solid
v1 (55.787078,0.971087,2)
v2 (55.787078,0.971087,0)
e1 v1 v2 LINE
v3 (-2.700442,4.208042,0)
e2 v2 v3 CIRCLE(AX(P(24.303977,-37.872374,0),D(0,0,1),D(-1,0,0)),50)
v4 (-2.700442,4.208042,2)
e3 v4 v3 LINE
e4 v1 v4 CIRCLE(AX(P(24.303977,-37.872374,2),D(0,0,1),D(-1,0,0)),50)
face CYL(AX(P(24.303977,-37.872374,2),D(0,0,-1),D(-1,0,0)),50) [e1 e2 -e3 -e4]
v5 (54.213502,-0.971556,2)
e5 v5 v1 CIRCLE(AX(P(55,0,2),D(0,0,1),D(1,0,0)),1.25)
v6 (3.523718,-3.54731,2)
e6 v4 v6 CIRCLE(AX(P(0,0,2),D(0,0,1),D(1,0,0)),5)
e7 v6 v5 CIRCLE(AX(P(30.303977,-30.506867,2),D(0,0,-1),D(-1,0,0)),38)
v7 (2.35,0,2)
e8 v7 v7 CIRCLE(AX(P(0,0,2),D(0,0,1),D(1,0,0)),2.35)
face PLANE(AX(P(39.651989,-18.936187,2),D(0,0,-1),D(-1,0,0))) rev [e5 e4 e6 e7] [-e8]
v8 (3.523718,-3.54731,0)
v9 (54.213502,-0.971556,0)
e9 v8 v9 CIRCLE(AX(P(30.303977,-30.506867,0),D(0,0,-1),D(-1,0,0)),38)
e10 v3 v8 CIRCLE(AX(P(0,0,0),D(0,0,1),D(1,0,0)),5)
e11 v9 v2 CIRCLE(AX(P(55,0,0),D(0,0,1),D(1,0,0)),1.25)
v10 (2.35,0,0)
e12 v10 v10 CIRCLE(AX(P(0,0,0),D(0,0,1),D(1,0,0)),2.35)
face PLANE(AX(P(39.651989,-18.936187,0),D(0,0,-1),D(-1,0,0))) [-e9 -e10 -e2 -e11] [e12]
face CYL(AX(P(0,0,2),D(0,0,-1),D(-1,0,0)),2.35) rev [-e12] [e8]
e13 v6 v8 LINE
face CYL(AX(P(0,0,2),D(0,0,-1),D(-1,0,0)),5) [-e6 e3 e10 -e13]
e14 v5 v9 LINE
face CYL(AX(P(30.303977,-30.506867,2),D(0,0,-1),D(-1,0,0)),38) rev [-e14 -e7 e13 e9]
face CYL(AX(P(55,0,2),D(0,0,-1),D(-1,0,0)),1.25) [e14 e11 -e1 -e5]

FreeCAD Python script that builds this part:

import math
import FreeCAD as App
import Part
import Sketcher

V = App.Vector
Q = App.Units.Quantity

doc = App.newDocument("Part")
body = doc.addObject("PartDesign::Body", "Body")

sketch1 = body.newObject("Sketcher::SketchObject", "Sketch")
sketch1.AttachmentSupport = (doc.getObject("XY_Plane"), [""])
sketch1.MapMode = "FlatFace"
sketch1.addGeometry(Part.ArcOfCircle(Part.Circle(V(0, 0, 0), V(0, 0, 1), 5), math.radians(123), math.radians(315)), False)
sketch1.addGeometry(Part.ArcOfCircle(Part.Circle(V(30.3, -30.5, 0), V(0, 0, 1), 38), math.radians(51), math.radians(135)), False)
sketch1.addGeometry(Part.ArcOfCircle(Part.Circle(V(55, 0, 0), V(0, 0, 1), 1.2), math.radians(-129), math.radians(51)), False)
sketch1.addGeometry(Part.ArcOfCircle(Part.Circle(V(24.3, -37.9, 0), V(0, 0, 1), 50), math.radians(51), math.radians(123)), False)
sketch1.addGeometry(Part.Circle(V(0, 0, 0), V(0, 0, 1), 2.4), False)
sketch1.addConstraint(Sketcher.Constraint("Tangent", 0, 2, 1, 2))
sketch1.addConstraint(Sketcher.Constraint("Tangent", 1, 1, 2, 1))
sketch1.addConstraint(Sketcher.Constraint("Tangent", 2, 2, 3, 1))
sketch1.addConstraint(Sketcher.Constraint("Tangent", 3, 2, 0, 1))
sketch1.addConstraint(Sketcher.Constraint("Coincident", 0, 3, -1, 1))
sketch1.addConstraint(Sketcher.Constraint("Coincident", 4, 3, -1, 1))
sketch1.addConstraint(Sketcher.Constraint("PointOnObject", 2, 3, -1))
sketch1.addConstraint(Sketcher.Constraint("Radius", 0, Q("5 mm")))
sketch1.addConstraint(Sketcher.Constraint("Radius", 1, Q("38 mm")))
sketch1.addConstraint(Sketcher.Constraint("Radius", 3, Q("50 mm")))
sketch1.addConstraint(Sketcher.Constraint("Diameter", 4, Q("4.7 mm")))
sketch1.addConstraint(Sketcher.Constraint("Radius", 2, Q("1.25 mm")))
sketch1.addConstraint(Sketcher.Constraint("DistanceX", -1, 1, 2, 3, Q("55 mm")))
pad1 = body.newObject("PartDesign::Pad", "Pad")
pad1.Profile = sketch1
pad1.Length = 2

doc.recompute()
